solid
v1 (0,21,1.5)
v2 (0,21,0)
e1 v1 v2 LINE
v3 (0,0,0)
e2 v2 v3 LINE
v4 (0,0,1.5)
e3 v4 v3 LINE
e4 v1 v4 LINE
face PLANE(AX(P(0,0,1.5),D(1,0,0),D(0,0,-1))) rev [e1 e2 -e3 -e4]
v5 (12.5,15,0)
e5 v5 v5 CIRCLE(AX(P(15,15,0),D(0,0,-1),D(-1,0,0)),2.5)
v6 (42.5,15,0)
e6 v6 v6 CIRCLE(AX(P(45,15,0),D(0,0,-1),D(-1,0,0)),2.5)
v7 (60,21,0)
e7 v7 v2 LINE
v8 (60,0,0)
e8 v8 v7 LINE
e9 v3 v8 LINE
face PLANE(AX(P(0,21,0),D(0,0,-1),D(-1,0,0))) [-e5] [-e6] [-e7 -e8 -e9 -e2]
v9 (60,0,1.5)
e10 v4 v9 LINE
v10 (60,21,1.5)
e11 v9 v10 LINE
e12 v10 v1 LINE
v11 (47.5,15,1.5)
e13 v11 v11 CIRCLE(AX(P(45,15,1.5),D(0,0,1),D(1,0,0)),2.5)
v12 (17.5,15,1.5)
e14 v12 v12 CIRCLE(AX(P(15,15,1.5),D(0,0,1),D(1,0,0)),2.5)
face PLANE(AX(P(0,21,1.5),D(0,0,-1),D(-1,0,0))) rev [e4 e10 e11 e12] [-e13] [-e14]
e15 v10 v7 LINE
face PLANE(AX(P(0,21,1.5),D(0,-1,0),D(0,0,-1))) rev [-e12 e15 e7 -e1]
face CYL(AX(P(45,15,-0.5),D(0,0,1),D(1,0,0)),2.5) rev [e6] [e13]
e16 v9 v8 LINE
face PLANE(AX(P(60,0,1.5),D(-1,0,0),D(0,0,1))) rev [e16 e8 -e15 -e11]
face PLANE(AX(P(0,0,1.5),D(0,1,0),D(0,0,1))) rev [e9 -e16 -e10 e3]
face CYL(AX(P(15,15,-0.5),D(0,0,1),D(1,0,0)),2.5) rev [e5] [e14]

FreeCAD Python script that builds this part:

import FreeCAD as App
import Part
import Sketcher
from FreeCAD import Vector
Q = App.Units.Quantity


def add_polygon(sketch, points):
    """Adds a closed chain of lines whose ends are joined by coincident constraints."""
    first, n = sketch.GeometryCount, len(points)
    for a, b in zip(points, points[1:] + points[:1]):
        sketch.addGeometry(Part.LineSegment(App.Vector(*a, 0), App.Vector(*b, 0)), False)
    for i in range(n):
        sketch.addConstraint(Sketcher.Constraint("Coincident", first + i, 2, first + (i + 1) % n, 1))

doc = App.newDocument("Part")
body = doc.addObject("PartDesign::Body", "Body")

# Sketch on XY plane
sketch1 = doc.addObject("Sketcher::SketchObject", "Sketch")
body.addObject(sketch1)
sketch1.AttachmentSupport = (doc.XY_Plane, [""])
sketch1.MapMode = "FlatFace"
add_polygon(sketch1, [(0, 21), (0, 0), (60, 0), (60, 21)])  # lines 0-3
sketch1.addConstraint([
    Sketcher.Constraint("Vertical", 0),
    Sketcher.Constraint("Horizontal", 1),
    Sketcher.Constraint("Vertical", 2),
    Sketcher.Constraint("Horizontal", 3),
    Sketcher.Constraint("Coincident", 0, 2, -1, 1),
    Sketcher.Constraint("DistanceX", 1, 1, 1, 2, Q("60 mm")),
    Sketcher.Constraint("DistanceY", 0, 2, 0, 1, Q("21 mm")),
])
pad1 = doc.addObject("PartDesign::Pad", "Pad")
body.addObject(pad1)
pad1.Profile = sketch1
pad1.Length = 1.5

# Sketch on XY plane
sketch2 = doc.addObject("Sketcher::SketchObject", "Sketch001")
body.addObject(sketch2)
sketch2.AttachmentSupport = (doc.XY_Plane, [""])
sketch2.MapMode = "FlatFace"
sketch2.AttachmentOffset = App.Placement(Vector(0, 0, 1.5), App.Rotation())
sketch2.addGeometry([
    Part.Circle(Vector(15, 15, 0), Vector(0, 0, 1), 2.5),
    Part.Circle(Vector(45, 15, 0), Vector(0, 0, 1), 2.5),
], False)
sketch2.addConstraint([
    Sketcher.Constraint("Equal", 0, 1),
    Sketcher.Constraint("Horizontal", 0, 3, 1, 3),
    Sketcher.Constraint("Diameter", 0, Q("5 mm")),
    Sketcher.Constraint("DistanceX", -1, 1, 0, 3, Q("15 mm")),
    Sketcher.Constraint("DistanceY", -1, 1, 0, 3, Q("15 mm")),
    Sketcher.Constraint("DistanceX", -1, 1, 1, 3, Q("45 mm")),
])
pocket1 = doc.addObject("PartDesign::Pocket", "Pocket")
body.addObject(pocket1)
pocket1.Profile = sketch2
pocket1.Length = 2

doc.recompute()
